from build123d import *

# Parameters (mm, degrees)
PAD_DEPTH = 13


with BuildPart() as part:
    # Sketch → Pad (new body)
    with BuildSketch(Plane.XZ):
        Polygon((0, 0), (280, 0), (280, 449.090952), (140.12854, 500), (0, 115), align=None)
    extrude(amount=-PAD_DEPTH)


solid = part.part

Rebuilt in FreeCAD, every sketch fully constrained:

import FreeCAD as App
import Part
import Sketcher
Q = App.Units.Quantity


def add_polygon(sketch, points):
    """Adds a closed chain of lines whose ends are joined by coincident constraints."""
    first, n = sketch.GeometryCount, len(points)
    for a, b in zip(points, points[1:] + points[:1]):
        sketch.addGeometry(Part.LineSegment(App.Vector(*a, 0), App.Vector(*b, 0)), False)
    for i in range(n):
        sketch.addConstraint(Sketcher.Constraint("Coincident", first + i, 2, first + (i + 1) % n, 1))

doc = App.newDocument("Part")
body = doc.addObject("PartDesign::Body", "Body")

# Sketch on XZ plane
sketch1 = doc.addObject("Sketcher::SketchObject", "Sketch")
body.addObject(sketch1)
sketch1.AttachmentSupport = (doc.XZ_Plane, [""])
sketch1.MapMode = "FlatFace"
add_polygon(sketch1, [(0, 0), (280, 0), (280, 449), (140, 500), (0, 115)])  # lines 0-4
sketch1.addConstraint(Sketcher.Constraint("Horizontal", 0))
sketch1.addConstraint(Sketcher.Constraint("Vertical", 1))
sketch1.addConstraint(Sketcher.Constraint("Vertical", 4))
sketch1.addConstraint(Sketcher.Constraint("Coincident", 4, 2, -1, 1))
sketch1.addConstraint(Sketcher.Constraint("Perpendicular", 2, 3))
sketch1.addConstraint(Sketcher.Constraint("DistanceX", 0, 1, 0, 2, Q("280 mm")))
sketch1.addConstraint(Sketcher.Constraint("DistanceY", 4, 2, 4, 1, Q("115 mm")))
sketch1.addConstraint(Sketcher.Constraint("Angle", 2, Q("160 deg")))
sketch1.addConstraint(Sketcher.Constraint("DistanceY", -1, 1, 2, 2, Q("500 mm")))
pad1 = doc.addObject("PartDesign::Pad", "Pad")
body.addObject(pad1)
pad1.Profile = sketch1
pad1.Length = 13
pad1.Reversed = True

doc.recompute()
